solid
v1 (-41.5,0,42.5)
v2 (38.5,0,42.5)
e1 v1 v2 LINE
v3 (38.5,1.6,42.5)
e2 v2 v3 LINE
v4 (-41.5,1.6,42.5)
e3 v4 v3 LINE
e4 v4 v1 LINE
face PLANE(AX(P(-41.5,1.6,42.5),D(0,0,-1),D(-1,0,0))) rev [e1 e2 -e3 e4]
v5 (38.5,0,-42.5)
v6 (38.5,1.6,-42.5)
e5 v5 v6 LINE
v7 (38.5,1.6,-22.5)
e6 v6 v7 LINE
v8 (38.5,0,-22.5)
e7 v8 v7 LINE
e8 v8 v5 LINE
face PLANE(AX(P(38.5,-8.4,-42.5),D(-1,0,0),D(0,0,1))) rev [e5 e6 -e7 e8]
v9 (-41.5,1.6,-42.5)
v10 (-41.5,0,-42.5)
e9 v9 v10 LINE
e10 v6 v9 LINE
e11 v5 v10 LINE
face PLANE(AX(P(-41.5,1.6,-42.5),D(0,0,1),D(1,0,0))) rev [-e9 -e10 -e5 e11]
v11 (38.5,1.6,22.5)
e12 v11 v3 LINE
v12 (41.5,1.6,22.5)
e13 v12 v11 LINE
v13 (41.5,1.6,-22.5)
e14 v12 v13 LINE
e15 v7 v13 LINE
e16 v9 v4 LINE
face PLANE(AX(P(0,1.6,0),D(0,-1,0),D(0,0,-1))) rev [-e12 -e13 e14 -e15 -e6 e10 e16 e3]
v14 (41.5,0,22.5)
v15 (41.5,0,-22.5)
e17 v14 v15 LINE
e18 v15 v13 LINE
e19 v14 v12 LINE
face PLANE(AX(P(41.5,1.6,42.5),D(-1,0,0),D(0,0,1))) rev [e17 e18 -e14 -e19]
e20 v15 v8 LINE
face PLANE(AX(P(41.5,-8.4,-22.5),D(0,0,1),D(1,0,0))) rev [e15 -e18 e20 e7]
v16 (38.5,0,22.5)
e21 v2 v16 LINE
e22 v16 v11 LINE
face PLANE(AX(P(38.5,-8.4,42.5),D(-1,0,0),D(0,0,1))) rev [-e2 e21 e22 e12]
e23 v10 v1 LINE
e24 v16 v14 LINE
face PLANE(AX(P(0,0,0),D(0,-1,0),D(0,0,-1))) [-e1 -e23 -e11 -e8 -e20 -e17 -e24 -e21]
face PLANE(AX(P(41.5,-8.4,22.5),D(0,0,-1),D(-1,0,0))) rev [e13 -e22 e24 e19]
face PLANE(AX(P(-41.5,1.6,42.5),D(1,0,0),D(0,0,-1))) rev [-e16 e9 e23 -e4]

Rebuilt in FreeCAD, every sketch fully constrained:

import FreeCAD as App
import Part
import Sketcher
from FreeCAD import Vector
Q = App.Units.Quantity


def add_polygon(sketch, points):
    """Adds a closed chain of lines whose ends are joined by coincident constraints."""
    first, n = sketch.GeometryCount, len(points)
    for a, b in zip(points, points[1:] + points[:1]):
        sketch.addGeometry(Part.LineSegment(App.Vector(*a, 0), App.Vector(*b, 0)), False)
    for i in range(n):
        sketch.addConstraint(Sketcher.Constraint("Coincident", first + i, 2, first + (i + 1) % n, 1))

doc = App.newDocument("Part")
body = doc.addObject("PartDesign::Body", "Body")

sketch1 = doc.addObject("Sketcher::SketchObject", "Sketch")
body.addObject(sketch1)
sketch1.AttachmentSupport = (doc.XZ_Plane, [""])
sketch1.MapMode = "FlatFace"
add_polygon(sketch1, [(-42, -42), (-42, 42), (42, 42), (42, -42)])
sketch1.addConstraint([
    Sketcher.Constraint("Vertical", 0),
    Sketcher.Constraint("Horizontal", 1),
    Sketcher.Constraint("Vertical", 2),
    Sketcher.Constraint("Horizontal", 3),
    Sketcher.Constraint("Symmetric", 0, 2, 2, 2, -1, 1),
    Sketcher.Constraint("DistanceX", 1, 1, 1, 2, Q("83 mm")),
    Sketcher.Constraint("DistanceY", 0, 1, 0, 2, Q("85 mm")),
])
pad1 = doc.addObject("PartDesign::Pad", "Pad")
body.addObject(pad1)
pad1.Profile = sketch1
pad1.Length = 1.6
pad1.Reversed = True

sketch2 = doc.addObject("Sketcher::SketchObject", "Sketch001")
body.addObject(sketch2)
sketch2.AttachmentSupport = (doc.XZ_Plane, [""])
sketch2.MapMode = "FlatFace"
sketch2.AttachmentOffset = App.Placement(Vector(0, 0, -1.6), App.Rotation())
add_polygon(sketch2, [(38.5, -42.5), (38.5, -22.5), (41.5, -22.5), (41.5, -42.5)])
add_polygon(sketch2, [(38.5, 22.5), (38.5, 42.5), (41.5, 42.5), (41.5, 22.5)])
sketch2.addConstraint([
    Sketcher.Constraint("Vertical", 0),
    Sketcher.Constraint("Horizontal", 1),
    Sketcher.Constraint("Vertical", 2),
    Sketcher.Constraint("Horizontal", 3),
    Sketcher.Constraint("Vertical", 4),
    Sketcher.Constraint("Horizontal", 5),
    Sketcher.Constraint("Vertical", 6),
    Sketcher.Constraint("Horizontal", 7),
    Sketcher.Constraint("Symmetric", 3, 2, 4, 2, -1),
    Sketcher.Constraint("Symmetric", 1, 2, 6, 2, -1),
    Sketcher.Constraint("DistanceX", 1, 1, 1, 2, Q("3 mm")),
    Sketcher.Constraint("DistanceY", 0, 1, 0, 2, Q("20 mm")),
    Sketcher.Constraint("DistanceY", 0, 2, 4, 2, Q("65 mm")),
    Sketcher.Constraint("DistanceX", -1, 1, 0, 2, Q("38.5 mm")),
])
pocket1 = doc.addObject("PartDesign::Pocket", "Pocket")
body.addObject(pocket1)
pocket1.Profile = sketch2
pocket1.Length = 10
pocket1.Reversed = True

doc.recompute()
